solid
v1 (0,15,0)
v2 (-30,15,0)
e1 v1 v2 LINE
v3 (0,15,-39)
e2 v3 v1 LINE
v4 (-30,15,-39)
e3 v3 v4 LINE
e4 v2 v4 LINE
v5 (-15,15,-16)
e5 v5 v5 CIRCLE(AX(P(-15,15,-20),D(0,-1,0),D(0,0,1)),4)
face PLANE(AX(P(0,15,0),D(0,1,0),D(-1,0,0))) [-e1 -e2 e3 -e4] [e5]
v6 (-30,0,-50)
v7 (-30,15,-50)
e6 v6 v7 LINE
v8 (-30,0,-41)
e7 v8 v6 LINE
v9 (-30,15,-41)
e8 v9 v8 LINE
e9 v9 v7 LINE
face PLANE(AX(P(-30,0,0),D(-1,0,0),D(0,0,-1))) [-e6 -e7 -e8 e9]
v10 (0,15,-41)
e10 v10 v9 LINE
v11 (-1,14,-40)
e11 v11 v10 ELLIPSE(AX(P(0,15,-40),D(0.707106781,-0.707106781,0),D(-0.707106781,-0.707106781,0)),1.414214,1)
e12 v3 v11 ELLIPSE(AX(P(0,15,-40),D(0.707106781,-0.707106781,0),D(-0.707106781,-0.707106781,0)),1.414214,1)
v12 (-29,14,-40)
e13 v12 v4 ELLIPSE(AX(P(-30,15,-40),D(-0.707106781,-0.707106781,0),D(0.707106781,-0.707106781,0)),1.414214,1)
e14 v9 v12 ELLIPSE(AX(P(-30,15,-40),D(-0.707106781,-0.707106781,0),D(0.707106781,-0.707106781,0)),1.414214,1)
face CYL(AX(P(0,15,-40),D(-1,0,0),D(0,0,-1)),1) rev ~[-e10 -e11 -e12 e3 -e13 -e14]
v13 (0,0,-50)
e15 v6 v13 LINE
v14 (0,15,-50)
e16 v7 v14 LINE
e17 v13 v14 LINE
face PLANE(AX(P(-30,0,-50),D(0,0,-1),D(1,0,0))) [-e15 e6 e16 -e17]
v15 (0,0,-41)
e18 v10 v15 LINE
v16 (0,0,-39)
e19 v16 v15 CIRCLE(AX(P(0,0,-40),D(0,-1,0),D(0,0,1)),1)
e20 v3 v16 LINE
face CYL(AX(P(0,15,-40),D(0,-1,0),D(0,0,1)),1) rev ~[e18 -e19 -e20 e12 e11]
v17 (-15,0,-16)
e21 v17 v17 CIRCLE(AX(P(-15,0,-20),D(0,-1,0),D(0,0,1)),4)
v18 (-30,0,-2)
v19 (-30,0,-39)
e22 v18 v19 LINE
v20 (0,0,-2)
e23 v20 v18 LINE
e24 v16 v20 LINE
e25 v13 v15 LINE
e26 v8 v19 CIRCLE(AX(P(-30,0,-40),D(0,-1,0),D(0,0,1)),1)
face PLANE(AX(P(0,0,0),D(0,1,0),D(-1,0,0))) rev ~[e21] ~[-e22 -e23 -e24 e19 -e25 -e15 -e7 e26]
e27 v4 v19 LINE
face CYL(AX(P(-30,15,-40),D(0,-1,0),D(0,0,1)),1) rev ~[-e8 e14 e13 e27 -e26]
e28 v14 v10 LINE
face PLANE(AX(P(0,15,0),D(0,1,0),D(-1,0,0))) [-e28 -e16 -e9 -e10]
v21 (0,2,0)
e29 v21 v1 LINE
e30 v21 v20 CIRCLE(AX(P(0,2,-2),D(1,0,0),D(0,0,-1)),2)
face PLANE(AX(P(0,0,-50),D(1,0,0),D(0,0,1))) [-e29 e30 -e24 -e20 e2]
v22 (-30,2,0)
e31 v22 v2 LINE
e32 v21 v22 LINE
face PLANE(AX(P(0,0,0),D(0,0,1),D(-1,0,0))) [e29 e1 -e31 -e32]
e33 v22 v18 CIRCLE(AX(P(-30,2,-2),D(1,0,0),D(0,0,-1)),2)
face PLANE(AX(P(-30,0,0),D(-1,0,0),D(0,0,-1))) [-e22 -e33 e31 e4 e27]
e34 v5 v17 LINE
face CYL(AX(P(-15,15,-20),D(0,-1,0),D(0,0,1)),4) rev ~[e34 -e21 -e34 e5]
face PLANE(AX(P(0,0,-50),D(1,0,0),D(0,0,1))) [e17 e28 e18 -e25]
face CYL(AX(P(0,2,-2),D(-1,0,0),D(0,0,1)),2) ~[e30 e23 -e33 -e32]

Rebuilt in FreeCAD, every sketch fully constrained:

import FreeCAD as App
import Part
import Sketcher

V = App.Vector


def edges_at(feature, points):
    """Names of the edges that pass closest to the given points."""
    edges = feature.Shape.Edges
    near = lambda p: min(range(len(edges)), key=lambda i: edges[i].distToShape(Part.Vertex(*p))[0])
    return sorted({f"Edge{near(p) + 1}" for p in points})


def add_polygon(sketch, points):
    """Adds a closed chain of lines whose ends are joined by coincident constraints."""
    first, n = sketch.GeometryCount, len(points)
    for a, b in zip(points, points[1:] + points[:1]):
        sketch.addGeometry(Part.LineSegment(App.Vector(*a, 0), App.Vector(*b, 0)), False)
    for i in range(n):
        sketch.addConstraint(Sketcher.Constraint("Coincident", first + i, 2, first + (i + 1) % n, 1))

doc = App.newDocument("Part")
body = doc.addObject("PartDesign::Body", "Body")

sketch1 = body.newObject("Sketcher::SketchObject", "Sketch")
sketch1.AttachmentSupport = (doc.getObject("XZ_Plane"), [""])
sketch1.MapMode = "FlatFace"
add_polygon(sketch1, [(-30, 0), (0, 0), (0, -50), (-30, -50)])
sketch1.addConstraint([
    Sketcher.Constraint("Horizontal", 0),
    Sketcher.Constraint("Vertical", 1),
    Sketcher.Constraint("Horizontal", 2),
    Sketcher.Constraint("Vertical", 3),
    Sketcher.Constraint("Coincident", 0, 2, -1, 1),
    Sketcher.Constraint("DistanceX", 0, 1, 0, 2, 30.0),
    Sketcher.Constraint("DistanceY", 1, 2, 1, 1, 50.0),
])
pad1 = body.newObject("PartDesign::Pad", "Pad")
pad1.Profile = sketch1
pad1.Length = 15
pad1.Reversed = True
doc.recompute()

fillet = body.newObject("PartDesign::Fillet", "Fillet")
fillet.Base = (pad1, edges_at(pad1, [(-15, 0, 0)]))
fillet.Radius = 2

sketch2 = body.newObject("Sketcher::SketchObject", "Sketch001")
sketch2.AttachmentSupport = (doc.getObject("XZ_Plane"), [""])
sketch2.MapMode = "FlatFace"
sketch2.AttachmentOffset = App.Placement(V(0, 0, -15), App.Rotation())
sketch2.addGeometry(Part.Circle(V(-15, -20, 0), V(0, 0, 1), 4), False)
sketch2.addConstraint([
    Sketcher.Constraint("Diameter", 0, 8.0),
    Sketcher.Constraint("DistanceX", 0, 3, -1, 1, 15.0),
    Sketcher.Constraint("DistanceY", 0, 3, -1, 1, 20.0),
])
doc.recompute()
hole = body.newObject("PartDesign::Hole", "Hole")
hole.Profile = sketch2
hole.ThreadType = "None"
hole.Diameter = 8
hole.DepthType = "ThroughAll"
hole.Reversed = True

sketch3 = body.newObject("Sketcher::SketchObject", "Sketch002")
sketch3.AttachmentSupport = (doc.getObject("XZ_Plane"), [""])
sketch3.MapMode = "FlatFace"
sketch3.AttachmentOffset = App.Placement(V(0, 0, -15), App.Rotation())
sketch3.addGeometry([
    Part.Circle(V(-30, -40, 0), V(0, 0, 1), 1),
    Part.Circle(V(0, -40, 0), V(0, 0, 1), 1),
], False)
sketch3.addConstraint([
    Sketcher.Constraint("Equal", 0, 1),
    Sketcher.Constraint("PointOnObject", 1, 3, -2),
    Sketcher.Constraint("Horizontal", 0, 3, 1, 3),
    Sketcher.Constraint("Diameter", 0, 2.0),
    Sketcher.Constraint("DistanceX", 0, 3, -1, 1, 30.0),
    Sketcher.Constraint("DistanceY", 0, 3, -1, 1, 40.0),
])
doc.recompute()
hole2 = body.newObject("PartDesign::Hole", "Hole001")
hole2.Profile = sketch3
hole2.ThreadType = "None"
hole2.Diameter = 2
hole2.DepthType = "ThroughAll"
hole2.Reversed = True

sketch4 = body.newObject("Sketcher::SketchObject", "Sketch003")
sketch4.AttachmentSupport = (doc.getObject("YZ_Plane"), [""])
sketch4.MapMode = "FlatFace"
sketch4.addGeometry(Part.Circle(V(15, -40, 0), V(0, 0, 1), 1), False)
sketch4.addConstraint([
    Sketcher.Constraint("Diameter", 0, 2.0),
    Sketcher.Constraint("DistanceX", -1, 1, 0, 3, 15.0),
    Sketcher.Constraint("DistanceY", 0, 3, -1, 1, 40.0),
])
doc.recompute()
hole3 = body.newObject("PartDesign::Hole", "Hole002")
hole3.Profile = sketch4
hole3.ThreadType = "None"
hole3.Diameter = 2
hole3.DepthType = "ThroughAll"

doc.recompute()
